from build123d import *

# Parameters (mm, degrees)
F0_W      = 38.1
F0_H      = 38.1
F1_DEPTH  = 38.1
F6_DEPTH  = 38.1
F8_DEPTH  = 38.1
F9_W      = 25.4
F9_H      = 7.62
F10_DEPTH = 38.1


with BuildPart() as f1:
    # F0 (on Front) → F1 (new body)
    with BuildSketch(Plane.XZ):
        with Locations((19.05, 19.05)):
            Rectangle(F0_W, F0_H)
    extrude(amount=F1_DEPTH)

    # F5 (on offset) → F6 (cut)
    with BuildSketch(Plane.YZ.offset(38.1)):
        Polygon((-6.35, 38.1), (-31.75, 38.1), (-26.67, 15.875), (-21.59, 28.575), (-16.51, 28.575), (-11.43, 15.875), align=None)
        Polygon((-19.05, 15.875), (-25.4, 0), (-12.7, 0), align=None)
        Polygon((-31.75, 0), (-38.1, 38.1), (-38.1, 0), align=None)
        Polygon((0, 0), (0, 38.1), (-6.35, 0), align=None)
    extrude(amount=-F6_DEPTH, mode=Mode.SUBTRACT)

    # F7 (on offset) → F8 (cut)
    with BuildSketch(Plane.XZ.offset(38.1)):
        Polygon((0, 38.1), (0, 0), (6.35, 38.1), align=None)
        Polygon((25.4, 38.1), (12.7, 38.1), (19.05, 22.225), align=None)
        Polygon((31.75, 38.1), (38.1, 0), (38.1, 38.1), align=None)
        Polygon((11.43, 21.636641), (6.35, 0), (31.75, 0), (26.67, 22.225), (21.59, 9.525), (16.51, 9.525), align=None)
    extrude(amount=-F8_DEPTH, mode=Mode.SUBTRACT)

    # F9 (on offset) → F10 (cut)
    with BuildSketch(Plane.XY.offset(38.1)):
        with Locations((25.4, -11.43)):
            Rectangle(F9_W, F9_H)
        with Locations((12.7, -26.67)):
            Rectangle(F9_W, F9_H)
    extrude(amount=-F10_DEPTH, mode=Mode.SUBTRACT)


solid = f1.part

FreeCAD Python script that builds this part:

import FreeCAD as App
import Part
import Sketcher

V = App.Vector
Q = App.Units.Quantity

doc = App.newDocument("Part")
params = doc.addObject("Spreadsheet::Sheet", "Params")
for row, (alias, value) in enumerate([
    ("sketch1_width", "1.5 in"),
    ("pad1_length", "1.5 in"),
    ("sketch2_width", "1 in"),
    ("sketch2_width2", "0.2 in"),
    ("sketch2_width3", "0.5 in"),
    ("sketch2_height", "1.5 in"),
    ("pocket1_length", "1.5 in"),
    ("sketch3_width", "1 in"),
    ("sketch3_width2", "0.5 in"),
    ("sketch3_width3", "0.2 in"),
    ("sketch3_height", "1.5 in"),
    ("sketch3_length", "0.875 in"),
    ("pocket2_length", "1.5 in"),
    ("sketch4_width", "1 in"),
    ("sketch4_height", "0.3 in"),
    ("pocket3_length", "1.5 in"),
], start=1):
    params.set(f"A{row}", alias)
    params.set(f"B{row}", "=" + value)
    params.setAlias(f"B{row}", alias)

body = doc.addObject("PartDesign::Body", "Body")

# Sketch on XZ plane
sketch1 = body.newObject("Sketcher::SketchObject", "Sketch")
sketch1.AttachmentSupport = (doc.getObject("XZ_Plane"), [""])
sketch1.MapMode = "FlatFace"
sketch1.addGeometry([
    Part.LineSegment(V(0, 38, 0), V(0, 0, 0)),
    Part.LineSegment(V(0, 0, 0), V(38, 0, 0)),
    Part.LineSegment(V(38, 0, 0), V(38, 38, 0)),
    Part.LineSegment(V(38, 38, 0), V(0, 38, 0)),
], False)
sketch1.addConstraint([
    Sketcher.Constraint("Coincident", 0, 2, 1, 1),
    Sketcher.Constraint("Coincident", 1, 2, 2, 1),
    Sketcher.Constraint("Coincident", 2, 2, 3, 1),
    Sketcher.Constraint("Coincident", 3, 2, 0, 1),
    Sketcher.Constraint("Vertical", 0),
    Sketcher.Constraint("Horizontal", 1),
    Sketcher.Constraint("Vertical", 2),
    Sketcher.Constraint("Horizontal", 3),
    Sketcher.Constraint("Coincident", 0, 2, -1, 1),
    Sketcher.Constraint("Equal", 3, 0),
    Sketcher.Constraint("DistanceX", 1, 1, 1, 2, Q("1.5 in")),
])
sketch1.setExpression("Constraints[10]", "Params.sketch1_width")
pad1 = body.newObject("PartDesign::Pad", "Pad")
pad1.Profile = sketch1
pad1.setExpression("Length", "Params.pad1_length")

# Sketch on YZ plane
sketch2 = body.newObject("Sketcher::SketchObject", "Sketch001")
sketch2.AttachmentSupport = (doc.getObject("YZ_Plane"), [""])
sketch2.MapMode = "FlatFace"
sketch2.AttachmentOffset = App.Placement(V(0, 0, 1.5 * 25.4), App.Rotation())
sketch2.addGeometry([
    Part.LineSegment(V(-6, 38, 0), V(-32, 38, 0)),  # 0
    Part.LineSegment(V(-32, 38, 0), V(-27, 16, 0)),  # 1
    Part.LineSegment(V(-27, 16, 0), V(-22, 29, 0)),  # 2
    Part.LineSegment(V(-22, 29, 0), V(-17, 29, 0)),  # 3
    Part.LineSegment(V(-17, 29, 0), V(-11, 16, 0)),  # 4
    Part.LineSegment(V(-11, 16, 0), V(-6, 38, 0)),  # 5
    Part.LineSegment(V(-19, 16, 0), V(-25, 0, 0)),  # 6
    Part.LineSegment(V(-25, 0, 0), V(-13, 0, 0)),  # 7
    Part.LineSegment(V(-13, 0, 0), V(-19, 16, 0)),  # 8
    Part.LineSegment(V(-32, 0, 0), V(-38, 38, 0)),  # 9
    Part.LineSegment(V(-38, 38, 0), V(-38, 0, 0)),  # 10
    Part.LineSegment(V(-38, 0, 0), V(-32, 0, 0)),  # 11
    Part.LineSegment(V(0, 0, 0), V(0, 38, 0)),  # 12
    Part.LineSegment(V(0, 38, 0), V(-6, 0, 0)),  # 13
    Part.LineSegment(V(-6, 0, 0), V(0, 0, 0)),  # 14
], False)
sketch2.addConstraint([
    Sketcher.Constraint("Coincident", 0, 2, 1, 1),
    Sketcher.Constraint("Coincident", 1, 2, 2, 1),
    Sketcher.Constraint("Coincident", 2, 2, 3, 1),
    Sketcher.Constraint("Coincident", 3, 2, 4, 1),
    Sketcher.Constraint("Coincident", 4, 2, 5, 1),
    Sketcher.Constraint("Coincident", 5, 2, 0, 1),
    Sketcher.Constraint("Coincident", 6, 2, 7, 1),
    Sketcher.Constraint("Coincident", 7, 2, 8, 1),
    Sketcher.Constraint("Coincident", 8, 2, 6, 1),
    Sketcher.Constraint("Coincident", 9, 2, 10, 1),
    Sketcher.Constraint("Coincident", 10, 2, 11, 1),
    Sketcher.Constraint("Coincident", 11, 2, 9, 1),
    Sketcher.Constraint("Coincident", 12, 2, 13, 1),
    Sketcher.Constraint("Coincident", 13, 2, 14, 1),
    Sketcher.Constraint("Coincident", 14, 2, 12, 1),
    Sketcher.Constraint("Horizontal", 0),
    Sketcher.Constraint("Horizontal", 3),
    Sketcher.Constraint("Horizontal", 7),
    Sketcher.Constraint("Vertical", 10),
    Sketcher.Constraint("Horizontal", 11),
    Sketcher.Constraint("Vertical", 12),
    Sketcher.Constraint("Horizontal", 14),
    Sketcher.Constraint("Coincident", 14, 2, -1, 1),
    Sketcher.Constraint("PointOnObject", 6, 2, -1),
    Sketcher.Constraint("PointOnObject", 10, 2, -1),
    Sketcher.Constraint("Parallel", 2, 6),
    Sketcher.Constraint("Parallel", 4, 8),
    Sketcher.Constraint("Horizontal", 1, 2, 4, 2),
    Sketcher.Constraint("Horizontal", 4, 2, 8, 2),
    Sketcher.Constraint("Horizontal", 5, 2, 9, 2),
    Sketcher.Constraint("Horizontal", 9, 2, 12, 2),
    Sketcher.Constraint("Vertical", 0, 2, 11, 2),
    Sketcher.Constraint("Vertical", 5, 2, 13, 2),
    Sketcher.Constraint("Equal", 11, 14),
    Sketcher.Constraint("Equal", 2, 4),
    Sketcher.Constraint("Equal", 1, 5),
    Sketcher.Constraint("DistanceX", 0, 2, 0, 1, Q("1 in")),
    Sketcher.Constraint("DistanceX", 3, 1, 3, 2, Q("0.2 in")),
    Sketcher.Constraint("DistanceX", 7, 1, 7, 2, Q("0.5 in")),
    Sketcher.Constraint("DistanceY", 10, 2, 10, 1, Q("1.5 in")),
    Sketcher.Constraint("DistanceX", 6, 2, -1, 1, Q("1 in")),
    Sketcher.Constraint("DistanceX", 10, 2, 7, 2, Q("1 in")),
    Sketcher.Constraint("DistanceX", 0, 2, 1, 2, Q("0.2 in")),
    Sketcher.Constraint("DistanceY", 1, 2, 2, 2, Q("0.5 in")),
])
sketch2.setExpression("Constraints[36]", "Params.sketch2_width")
sketch2.setExpression("Constraints[37]", "Params.sketch2_width2")
sketch2.setExpression("Constraints[38]", "Params.sketch2_width3")
sketch2.setExpression("Constraints[39]", "Params.sketch2_height")
pocket1 = body.newObject("PartDesign::Pocket", "Pocket")
pocket1.Profile = sketch2
pocket1.setExpression("Length", "Params.pocket1_length")

# Sketch on XZ plane
sketch3 = body.newObject("Sketcher::SketchObject", "Sketch002")
sketch3.AttachmentSupport = (doc.getObject("XZ_Plane"), [""])
sketch3.MapMode = "FlatFace"
sketch3.AttachmentOffset = App.Placement(V(0, 0, 1.5 * 25.4), App.Rotation())
sketch3.addGeometry([
    Part.LineSegment(V(0, 38, 0), V(0, 0, 0)),  # 0
    Part.LineSegment(V(0, 0, 0), V(6, 38, 0)),  # 1
    Part.LineSegment(V(6, 38, 0), V(0, 38, 0)),  # 2
    Part.LineSegment(V(25, 38, 0), V(13, 38, 0)),  # 3
    Part.LineSegment(V(13, 38, 0), V(19, 22, 0)),  # 4
    Part.LineSegment(V(19, 22, 0), V(25, 38, 0)),  # 5
    Part.LineSegment(V(32, 38, 0), V(38, 0, 0)),  # 6
    Part.LineSegment(V(38, 0, 0), V(38, 38, 0)),  # 7
    Part.LineSegment(V(38, 38, 0), V(32, 38, 0)),  # 8
    Part.LineSegment(V(11, 22, 0), V(6, 0, 0)),  # 9
    Part.LineSegment(V(6, 0, 0), V(32, 0, 0)),  # 10
    Part.LineSegment(V(32, 0, 0), V(27, 22, 0)),  # 11
    Part.LineSegment(V(27, 22, 0), V(22, 10, 0)),  # 12
    Part.LineSegment(V(22, 10, 0), V(17, 10, 0)),  # 13
    Part.LineSegment(V(17, 10, 0), V(11, 22, 0)),  # 14
], False)
sketch3.addConstraint([
    Sketcher.Constraint("Coincident", 0, 2, 1, 1),
    Sketcher.Constraint("Coincident", 1, 2, 2, 1),
    Sketcher.Constraint("Coincident", 2, 2, 0, 1),
    Sketcher.Constraint("Coincident", 3, 2, 4, 1),
    Sketcher.Constraint("Coincident", 4, 2, 5, 1),
    Sketcher.Constraint("Coincident", 5, 2, 3, 1),
    Sketcher.Constraint("Coincident", 6, 2, 7, 1),
    Sketcher.Constraint("Coincident", 7, 2, 8, 1),
    Sketcher.Constraint("Coincident", 8, 2, 6, 1),
    Sketcher.Constraint("Coincident", 9, 2, 10, 1),
    Sketcher.Constraint("Coincident", 10, 2, 11, 1),
    Sketcher.Constraint("Coincident", 11, 2, 12, 1),
    Sketcher.Constraint("Coincident", 12, 2, 13, 1),
    Sketcher.Constraint("Coincident", 13, 2, 14, 1),
    Sketcher.Constraint("Coincident", 14, 2, 9, 1),
    Sketcher.Constraint("Vertical", 0),
    Sketcher.Constraint("Horizontal", 2),
    Sketcher.Constraint("Horizontal", 3),
    Sketcher.Constraint("Vertical", 7),
    Sketcher.Constraint("Horizontal", 8),
    Sketcher.Constraint("Horizontal", 10),
    Sketcher.Constraint("Horizontal", 13),
    Sketcher.Constraint("Coincident", 0, 2, -1, 1),
    Sketcher.Constraint("PointOnObject", 6, 2, -1),
    Sketcher.Constraint("PointOnObject", 9, 2, -1),
    Sketcher.Constraint("Parallel", 5, 12),
    Sketcher.Constraint("Horizontal", 2, 2, 3, 2),
    Sketcher.Constraint("Horizontal", 5, 2, 7, 2),
    Sketcher.Constraint("Horizontal", 4, 2, 11, 2),
    Sketcher.Constraint("Vertical", 1, 2, 9, 2),
    Sketcher.Constraint("Vertical", 8, 2, 10, 2),
    Sketcher.Constraint("Equal", 2, 8),
    Sketcher.Constraint("Equal", 4, 5),
    Sketcher.Constraint("DistanceX", 10, 1, 10, 2, Q("1 in")),
    Sketcher.Constraint("DistanceX", 3, 2, 3, 1, Q("0.5 in")),
    Sketcher.Constraint("DistanceX", 13, 2, 13, 1, Q("0.2 in")),
    Sketcher.Constraint("DistanceY", 0, 2, 0, 1, Q("1.5 in")),
    Sketcher.Constraint("DistanceX", -1, 1, 5, 2, Q("1 in")),
    Sketcher.Constraint("DistanceX", 3, 2, 6, 2, Q("1 in")),
    Sketcher.Constraint("DistanceX", 4, 2, 11, 2, Q("0.3 in")),
    Sketcher.Constraint("DistanceX", 4, 2, 12, 2, Q("0.1 in")),
    Sketcher.Constraint("DistanceY", 12, 2, 4, 2, Q("0.5 in")),
    Sketcher.Constraint("DistanceX", 14, 2, 4, 2, Q("0.3 in")),
    Sketcher.Constraint("Distance", 9, Q("0.875 in")),
])
sketch3.setExpression("Constraints[33]", "Params.sketch3_width")
sketch3.setExpression("Constraints[34]", "Params.sketch3_width2")
sketch3.setExpression("Constraints[35]", "Params.sketch3_width3")
sketch3.setExpression("Constraints[36]", "Params.sketch3_height")
sketch3.setExpression("Constraints[43]", "Params.sketch3_length")
pocket2 = body.newObject("PartDesign::Pocket", "Pocket001")
pocket2.Profile = sketch3
pocket2.setExpression("Length", "Params.pocket2_length")

# Sketch on XY plane
sketch4 = body.newObject("Sketcher::SketchObject", "Sketch003")
sketch4.AttachmentSupport = (doc.getObject("XY_Plane"), [""])
sketch4.MapMode = "FlatFace"
sketch4.AttachmentOffset = App.Placement(V(0, 0, 1.5 * 25.4), App.Rotation())
sketch4.addGeometry([
    Part.LineSegment(V(13, -8, 0), V(13, -15, 0)),  # 0
    Part.LineSegment(V(13, -15, 0), V(38, -15, 0)),  # 1
    Part.LineSegment(V(38, -15, 0), V(38, -8, 0)),  # 2
    Part.LineSegment(V(38, -8, 0), V(13, -8, 0)),  # 3
    Part.LineSegment(V(0, -23, 0), V(0, -30, 0)),  # 4
    Part.LineSegment(V(0, -30, 0), V(25, -30, 0)),  # 5
    Part.LineSegment(V(25, -30, 0), V(25, -23, 0)),  # 6
    Part.LineSegment(V(25, -23, 0), V(0, -23, 0)),  # 7
], False)
sketch4.addConstraint([
    Sketcher.Constraint("Coincident", 0, 2, 1, 1),
    Sketcher.Constraint("Coincident", 1, 2, 2, 1),
    Sketcher.Constraint("Coincident", 2, 2, 3, 1),
    Sketcher.Constraint("Coincident", 3, 2, 0, 1),
    Sketcher.Constraint("Coincident", 4, 2, 5, 1),
    Sketcher.Constraint("Coincident", 5, 2, 6, 1),
    Sketcher.Constraint("Coincident", 6, 2, 7, 1),
    Sketcher.Constraint("Coincident", 7, 2, 4, 1),
    Sketcher.Constraint("Vertical", 0),
    Sketcher.Constraint("Horizontal", 1),
    Sketcher.Constraint("Vertical", 2),
    Sketcher.Constraint("Horizontal", 3),
    Sketcher.Constraint("Vertical", 4),
    Sketcher.Constraint("Horizontal", 5),
    Sketcher.Constraint("Vertical", 6),
    Sketcher.Constraint("Horizontal", 7),
    Sketcher.Constraint("PointOnObject", 4, 2, -2),
    Sketcher.Constraint("Equal", 3, 5),
    Sketcher.Constraint("Equal", 2, 4),
    Sketcher.Constraint("DistanceX", 1, 1, 1, 2, Q("1 in")),
    Sketcher.Constraint("DistanceY", 0, 2, 0, 1, Q("0.3 in")),
    Sketcher.Constraint("DistanceX", -1, 1, 0, 2, Q("0.5 in")),
    Sketcher.Constraint("DistanceY", 0, 2, -1, 1, Q("0.6 in")),
    Sketcher.Constraint("DistanceY", 4, 2, -1, 1, Q("1.2 in")),
])
sketch4.setExpression("Constraints[19]", "Params.sketch4_width")
sketch4.setExpression("Constraints[20]", "Params.sketch4_height")
pocket3 = body.newObject("PartDesign::Pocket", "Pocket002")
pocket3.Profile = sketch4
pocket3.setExpression("Length", "Params.pocket3_length")

doc.recompute()
